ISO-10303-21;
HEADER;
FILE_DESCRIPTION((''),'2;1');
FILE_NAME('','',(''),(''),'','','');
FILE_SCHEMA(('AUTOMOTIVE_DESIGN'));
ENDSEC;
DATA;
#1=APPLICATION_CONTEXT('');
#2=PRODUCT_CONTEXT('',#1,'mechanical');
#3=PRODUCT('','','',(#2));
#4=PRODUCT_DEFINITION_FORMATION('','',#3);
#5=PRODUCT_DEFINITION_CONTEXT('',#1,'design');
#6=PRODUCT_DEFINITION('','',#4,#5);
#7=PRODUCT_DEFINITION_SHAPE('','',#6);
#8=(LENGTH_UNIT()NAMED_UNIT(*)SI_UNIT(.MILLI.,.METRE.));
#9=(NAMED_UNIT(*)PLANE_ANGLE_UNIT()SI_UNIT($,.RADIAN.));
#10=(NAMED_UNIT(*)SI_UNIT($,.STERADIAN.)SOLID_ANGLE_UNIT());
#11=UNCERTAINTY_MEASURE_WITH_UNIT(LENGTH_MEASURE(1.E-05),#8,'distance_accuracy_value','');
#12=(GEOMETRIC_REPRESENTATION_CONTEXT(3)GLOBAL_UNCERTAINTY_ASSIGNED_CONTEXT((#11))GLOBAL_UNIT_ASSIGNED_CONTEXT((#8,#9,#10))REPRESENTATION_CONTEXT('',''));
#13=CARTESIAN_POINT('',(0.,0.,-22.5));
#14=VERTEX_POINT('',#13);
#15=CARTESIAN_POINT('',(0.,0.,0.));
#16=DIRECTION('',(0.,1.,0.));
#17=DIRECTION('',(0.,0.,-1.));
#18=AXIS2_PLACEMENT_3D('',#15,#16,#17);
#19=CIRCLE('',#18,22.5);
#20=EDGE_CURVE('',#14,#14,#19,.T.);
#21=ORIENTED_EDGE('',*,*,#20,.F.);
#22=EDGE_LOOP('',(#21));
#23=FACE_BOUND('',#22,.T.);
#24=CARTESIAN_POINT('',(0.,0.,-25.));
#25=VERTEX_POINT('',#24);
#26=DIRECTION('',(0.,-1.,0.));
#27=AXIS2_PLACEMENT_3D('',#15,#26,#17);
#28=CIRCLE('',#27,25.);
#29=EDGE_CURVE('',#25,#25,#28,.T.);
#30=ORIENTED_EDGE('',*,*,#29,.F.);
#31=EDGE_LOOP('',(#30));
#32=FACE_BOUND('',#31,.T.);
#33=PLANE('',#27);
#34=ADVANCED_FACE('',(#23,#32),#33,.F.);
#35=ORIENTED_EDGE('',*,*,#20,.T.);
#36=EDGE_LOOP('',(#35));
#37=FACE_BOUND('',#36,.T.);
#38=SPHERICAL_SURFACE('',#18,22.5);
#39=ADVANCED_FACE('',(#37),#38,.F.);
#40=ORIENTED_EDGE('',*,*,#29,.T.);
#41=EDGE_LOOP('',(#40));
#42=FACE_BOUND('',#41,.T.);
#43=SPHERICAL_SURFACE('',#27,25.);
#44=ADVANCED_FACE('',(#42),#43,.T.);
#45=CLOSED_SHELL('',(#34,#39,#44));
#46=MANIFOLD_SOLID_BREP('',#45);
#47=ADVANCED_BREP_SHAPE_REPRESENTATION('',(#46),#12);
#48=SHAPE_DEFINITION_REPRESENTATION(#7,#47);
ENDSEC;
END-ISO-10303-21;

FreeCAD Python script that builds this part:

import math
import FreeCAD as App
import Part
import Sketcher

V = App.Vector

doc = App.newDocument("Part")
params = doc.addObject("Spreadsheet::Sheet", "Params")
for row, (alias, value) in enumerate([
    ("sketch1_radius", "25 mm"),
    ("sketch1_radius2", "22.5 mm"),
    ("revolution_angle", "180 deg"),
], start=1):
    params.set(f"A{row}", alias)
    params.set(f"B{row}", "=" + value)
    params.setAlias(f"B{row}", alias)

body = doc.addObject("PartDesign::Body", "Body")

sketch1 = doc.addObject("Sketcher::SketchObject", "Sketch")
body.addObject(sketch1)
sketch1.AttachmentSupport = (doc.XZ_Plane, [""])
sketch1.MapMode = "FlatFace"
sketch1.addGeometry([
    Part.LineSegment(V(-25, 0, 0), V(-22.5, 0, 0)),
    Part.ArcOfCircle(Part.Circle(V(0, 0, 0), V(0, 0, 1), 22.5), math.radians(180), math.radians(360)),
    Part.LineSegment(V(22.5, 0, 0), V(25, 0, 0)),
    Part.ArcOfCircle(Part.Circle(V(0, 0, 0), V(0, 0, 1), 25), math.radians(180), math.radians(360)),
], False)
sketch1.addConstraint([
    Sketcher.Constraint("Coincident", 0, 2, 1, 1),
    Sketcher.Constraint("Coincident", 1, 2, 2, 1),
    Sketcher.Constraint("Coincident", 2, 2, 3, 2),
    Sketcher.Constraint("Coincident", 3, 1, 0, 1),
    Sketcher.Constraint("Horizontal", 0),
    Sketcher.Constraint("Horizontal", 2),
    Sketcher.Constraint("Coincident", 1, 3, -1, 1),
    Sketcher.Constraint("Coincident", 3, 3, -1, 1),
    Sketcher.Constraint("PointOnObject", 0, 2, -1),
    Sketcher.Constraint("PointOnObject", 1, 2, -1),
    Sketcher.Constraint("Radius", 3, 25.0),
    Sketcher.Constraint("Radius", 1, 22.5),
])
sketch1.setExpression("Constraints[10]", "Params.sketch1_radius")
sketch1.setExpression("Constraints[11]", "Params.sketch1_radius2")
revolution = doc.addObject("PartDesign::Revolution", "Revolution")
body.addObject(revolution)
revolution.Profile = sketch1
revolution.ReferenceAxis = (sketch1, ["H_Axis"])
revolution.setExpression("Angle", "Params.revolution_angle")
revolution.Reversed = True

doc.recompute()
